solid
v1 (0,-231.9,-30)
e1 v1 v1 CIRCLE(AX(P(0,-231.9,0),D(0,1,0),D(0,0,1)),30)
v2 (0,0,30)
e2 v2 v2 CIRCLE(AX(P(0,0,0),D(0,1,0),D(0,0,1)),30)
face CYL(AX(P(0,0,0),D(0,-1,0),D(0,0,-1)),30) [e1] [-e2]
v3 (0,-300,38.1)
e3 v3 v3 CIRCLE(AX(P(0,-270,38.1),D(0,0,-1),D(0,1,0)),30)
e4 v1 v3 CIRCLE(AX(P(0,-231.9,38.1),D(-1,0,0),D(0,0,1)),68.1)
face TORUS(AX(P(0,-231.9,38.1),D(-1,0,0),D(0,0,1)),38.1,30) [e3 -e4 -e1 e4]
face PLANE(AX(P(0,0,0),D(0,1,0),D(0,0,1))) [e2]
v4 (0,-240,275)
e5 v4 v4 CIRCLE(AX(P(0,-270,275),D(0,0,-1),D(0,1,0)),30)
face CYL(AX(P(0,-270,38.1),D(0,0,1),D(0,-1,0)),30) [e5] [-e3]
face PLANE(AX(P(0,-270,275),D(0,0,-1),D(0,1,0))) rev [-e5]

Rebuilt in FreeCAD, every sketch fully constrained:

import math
import FreeCAD as App
import Part
import Sketcher

doc = App.newDocument("Part")
params = doc.addObject("Spreadsheet::Sheet", "Params")
for row, (alias, value) in enumerate([
    ("sketch1_diameter", "60 mm"),
    ("sketch2_radius", "38.1 mm"),
    ("sketch2_width", "231.9 mm"),
    ("sketch2_height", "236.9 mm"),
], start=1):
    params.set(f"A{row}", alias)
    params.set(f"B{row}", "=" + value)
    params.setAlias(f"B{row}", alias)

body = doc.addObject("PartDesign::Body", "Body")

# Sketch on XZ plane
sketch1 = body.newObject("Sketcher::SketchObject", "Sketch")
sketch1.AttachmentSupport = (doc.getObject("XZ_Plane"), [""])
sketch1.MapMode = "FlatFace"
sketch1.addGeometry(Part.Circle(App.Vector(0, 0, 0), App.Vector(0, 0, 1), 30), False)
sketch1.addConstraint([
    Sketcher.Constraint("Coincident", 0, 3, -1, 1),
    Sketcher.Constraint("Diameter", 0, 60.0),
])
sketch1.setExpression("Constraints[1]", "Params.sketch1_diameter")

# Sketch on YZ plane
sketch2 = body.newObject("Sketcher::SketchObject", "Sketch001")
sketch2.AttachmentSupport = (doc.getObject("YZ_Plane"), [""])
sketch2.MapMode = "FlatFace"
sketch2.addGeometry([
    Part.LineSegment(App.Vector(0, 0, 0), App.Vector(-231.9, 0, 0)),
    Part.ArcOfCircle(Part.Circle(App.Vector(-231.9, 38.1, 0), App.Vector(0, 0, 1), 38.1), math.radians(-180), math.radians(-90)),
    Part.LineSegment(App.Vector(-270, 38.1, 0), App.Vector(-270, 275, 0)),
], False)
sketch2.addConstraint([
    Sketcher.Constraint("Tangent", 0, 2, 1, 2),
    Sketcher.Constraint("Tangent", 1, 1, 2, 1),
    Sketcher.Constraint("Horizontal", 0),
    Sketcher.Constraint("Vertical", 2),
    Sketcher.Constraint("Coincident", 0, 1, -1, 1),
    Sketcher.Constraint("Radius", 1, 38.1),
    Sketcher.Constraint("DistanceX", 0, 2, 0, 1, 231.9),
    Sketcher.Constraint("DistanceY", 2, 1, 2, 2, 236.9),
])
sketch2.setExpression("Constraints[5]", "Params.sketch2_radius")
sketch2.setExpression("Constraints[6]", "Params.sketch2_width")
sketch2.setExpression("Constraints[7]", "Params.sketch2_height")
doc.recompute()

additivepipe = body.newObject("PartDesign::AdditivePipe", "AdditivePipe")
additivepipe.Profile = sketch1
additivepipe.Spine = (sketch2, ["Edge1", "Edge2", "Edge3"])

doc.recompute()
